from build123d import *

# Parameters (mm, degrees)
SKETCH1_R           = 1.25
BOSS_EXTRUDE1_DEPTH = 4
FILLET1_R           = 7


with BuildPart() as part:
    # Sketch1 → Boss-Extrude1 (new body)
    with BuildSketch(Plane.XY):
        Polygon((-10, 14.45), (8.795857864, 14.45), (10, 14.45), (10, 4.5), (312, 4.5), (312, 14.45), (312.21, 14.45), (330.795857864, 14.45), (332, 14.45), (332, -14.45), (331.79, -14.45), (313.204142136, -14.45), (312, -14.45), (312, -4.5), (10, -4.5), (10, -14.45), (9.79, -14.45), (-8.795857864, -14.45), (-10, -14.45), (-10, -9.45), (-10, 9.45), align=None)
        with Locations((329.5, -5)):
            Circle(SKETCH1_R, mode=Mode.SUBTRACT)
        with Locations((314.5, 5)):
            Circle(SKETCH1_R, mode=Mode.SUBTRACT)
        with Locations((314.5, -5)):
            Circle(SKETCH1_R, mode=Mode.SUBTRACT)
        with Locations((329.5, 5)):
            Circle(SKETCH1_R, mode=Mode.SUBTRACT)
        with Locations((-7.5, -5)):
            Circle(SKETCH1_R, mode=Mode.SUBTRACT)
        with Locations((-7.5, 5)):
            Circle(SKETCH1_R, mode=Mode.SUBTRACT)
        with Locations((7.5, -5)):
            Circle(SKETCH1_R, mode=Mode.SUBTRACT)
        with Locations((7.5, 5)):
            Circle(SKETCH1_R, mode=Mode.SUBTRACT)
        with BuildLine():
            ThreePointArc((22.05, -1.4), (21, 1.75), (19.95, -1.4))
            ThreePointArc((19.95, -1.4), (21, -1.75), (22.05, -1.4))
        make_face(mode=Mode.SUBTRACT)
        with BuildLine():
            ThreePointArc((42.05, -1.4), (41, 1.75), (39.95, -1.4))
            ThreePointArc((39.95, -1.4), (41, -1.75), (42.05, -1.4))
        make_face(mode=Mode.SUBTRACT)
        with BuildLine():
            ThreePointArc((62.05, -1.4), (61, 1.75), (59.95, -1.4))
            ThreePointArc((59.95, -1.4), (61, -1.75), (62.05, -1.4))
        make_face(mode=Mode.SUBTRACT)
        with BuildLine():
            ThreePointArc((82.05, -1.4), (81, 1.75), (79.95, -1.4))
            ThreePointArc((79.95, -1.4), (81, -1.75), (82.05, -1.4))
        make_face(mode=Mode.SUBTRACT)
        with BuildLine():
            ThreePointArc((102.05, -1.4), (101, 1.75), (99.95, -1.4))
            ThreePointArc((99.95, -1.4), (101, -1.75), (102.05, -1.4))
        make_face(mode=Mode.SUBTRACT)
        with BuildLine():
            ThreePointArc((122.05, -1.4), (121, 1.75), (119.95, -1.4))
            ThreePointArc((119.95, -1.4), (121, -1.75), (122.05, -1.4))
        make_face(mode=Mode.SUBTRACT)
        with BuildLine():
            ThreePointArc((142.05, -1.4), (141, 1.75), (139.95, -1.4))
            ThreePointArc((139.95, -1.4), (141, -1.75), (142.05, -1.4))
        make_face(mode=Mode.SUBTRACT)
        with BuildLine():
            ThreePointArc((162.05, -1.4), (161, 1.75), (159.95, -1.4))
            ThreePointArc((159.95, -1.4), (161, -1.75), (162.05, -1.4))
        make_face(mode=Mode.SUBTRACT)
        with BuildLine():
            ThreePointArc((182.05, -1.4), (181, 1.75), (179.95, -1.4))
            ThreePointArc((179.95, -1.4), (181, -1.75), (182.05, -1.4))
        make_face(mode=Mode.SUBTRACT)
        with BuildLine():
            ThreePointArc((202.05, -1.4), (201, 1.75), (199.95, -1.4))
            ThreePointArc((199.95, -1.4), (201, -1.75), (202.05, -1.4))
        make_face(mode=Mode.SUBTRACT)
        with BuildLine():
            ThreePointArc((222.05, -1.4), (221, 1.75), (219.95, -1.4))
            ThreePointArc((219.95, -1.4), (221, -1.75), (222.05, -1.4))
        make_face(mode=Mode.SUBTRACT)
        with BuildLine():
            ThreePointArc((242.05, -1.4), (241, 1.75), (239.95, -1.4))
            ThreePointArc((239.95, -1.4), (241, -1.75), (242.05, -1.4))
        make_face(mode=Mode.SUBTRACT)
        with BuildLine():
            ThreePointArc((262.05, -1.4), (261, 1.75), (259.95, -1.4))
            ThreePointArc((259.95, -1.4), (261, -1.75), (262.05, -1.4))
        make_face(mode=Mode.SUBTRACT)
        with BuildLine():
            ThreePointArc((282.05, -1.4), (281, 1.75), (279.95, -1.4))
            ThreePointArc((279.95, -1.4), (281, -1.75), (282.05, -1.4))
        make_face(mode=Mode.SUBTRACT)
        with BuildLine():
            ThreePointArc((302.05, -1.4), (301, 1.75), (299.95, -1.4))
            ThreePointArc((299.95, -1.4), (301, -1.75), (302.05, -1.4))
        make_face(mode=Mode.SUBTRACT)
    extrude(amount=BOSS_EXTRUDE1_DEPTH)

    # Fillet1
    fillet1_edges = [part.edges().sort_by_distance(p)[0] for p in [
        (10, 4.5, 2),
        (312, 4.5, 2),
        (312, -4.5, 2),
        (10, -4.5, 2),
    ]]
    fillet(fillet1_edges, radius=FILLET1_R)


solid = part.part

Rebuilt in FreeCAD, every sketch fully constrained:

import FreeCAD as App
import Part
import Sketcher

V = App.Vector


def edges_at(feature, points):
    """Names of the edges that pass closest to the given points."""
    edges = feature.Shape.Edges
    near = lambda p: min(range(len(edges)), key=lambda i: edges[i].distToShape(Part.Vertex(*p))[0])
    return sorted({f"Edge{near(p) + 1}" for p in points})


def add_polygon(sketch, points):
    """Adds a closed chain of lines whose ends are joined by coincident constraints."""
    first, n = sketch.GeometryCount, len(points)
    for a, b in zip(points, points[1:] + points[:1]):
        sketch.addGeometry(Part.LineSegment(App.Vector(*a, 0), App.Vector(*b, 0)), False)
    for i in range(n):
        sketch.addConstraint(Sketcher.Constraint("Coincident", first + i, 2, first + (i + 1) % n, 1))

doc = App.newDocument("Part")
body = doc.addObject("PartDesign::Body", "Body")

sketch1 = body.newObject("Sketcher::SketchObject", "Sketch")
sketch1.AttachmentSupport = (doc.getObject("XY_Plane"), [""])
sketch1.MapMode = "FlatFace"
add_polygon(sketch1, [(10, 14.4), (-10, 14.4), (-10, -14.4), (10, -14.4), (10, -4.5), (312, -4.5), (312, -14.4), (332, -14.4), (332, 14.4), (312, 14.4), (312, 4.5), (10, 4.5)])
sketch1.addGeometry(Part.Circle(V(329.5, -5, 0), V(0, 0, 1), 1.2), False)
sketch1.addGeometry(Part.Circle(V(314.5, -5, 0), V(0, 0, 1), 1.2), False)
sketch1.addGeometry(Part.Circle(V(301, 0, 0), V(0, 0, 1), 1.8), False)
sketch1.addGeometry(Part.Circle(V(281, 0, 0), V(0, 0, 1), 1.8), False)
sketch1.addGeometry(Part.Circle(V(261, 0, 0), V(0, 0, 1), 1.8), False)
sketch1.addGeometry(Part.Circle(V(7.5, -5, 0), V(0, 0, 1), 1.2), False)
sketch1.addGeometry(Part.Circle(V(-7.5, -5, 0), V(0, 0, 1), 1.2), False)
sketch1.addGeometry(Part.Circle(V(61, 0, 0), V(0, 0, 1), 1.8), False)
sketch1.addGeometry(Part.Circle(V(41, 0, 0), V(0, 0, 1), 1.8), False)
sketch1.addGeometry(Part.Circle(V(21, 0, 0), V(0, 0, 1), 1.8), False)
sketch1.addGeometry(Part.Circle(V(241, 0, 0), V(0, 0, 1), 1.8), False)
sketch1.addGeometry(Part.Circle(V(221, 0, 0), V(0, 0, 1), 1.8), False)
sketch1.addGeometry(Part.Circle(V(201, 0, 0), V(0, 0, 1), 1.8), False)
sketch1.addGeometry(Part.Circle(V(181, 0, 0), V(0, 0, 1), 1.8), False)
sketch1.addGeometry(Part.Circle(V(329.5, 5, 0), V(0, 0, 1), 1.2), False)
sketch1.addGeometry(Part.Circle(V(314.5, 5, 0), V(0, 0, 1), 1.2), False)
sketch1.addGeometry(Part.Circle(V(161, 0, 0), V(0, 0, 1), 1.8), False)
sketch1.addGeometry(Part.Circle(V(141, 0, 0), V(0, 0, 1), 1.8), False)
sketch1.addGeometry(Part.Circle(V(121, 0, 0), V(0, 0, 1), 1.8), False)
sketch1.addGeometry(Part.Circle(V(101, 0, 0), V(0, 0, 1), 1.8), False)
sketch1.addGeometry(Part.Circle(V(81, 0, 0), V(0, 0, 1), 1.8), False)
sketch1.addGeometry(Part.Circle(V(7.5, 5, 0), V(0, 0, 1), 1.2), False)
sketch1.addGeometry(Part.Circle(V(-7.5, 5, 0), V(0, 0, 1), 1.2), False)
sketch1.addConstraint([
    Sketcher.Constraint("Horizontal", 0),
    Sketcher.Constraint("Vertical", 1),
    Sketcher.Constraint("Horizontal", 2),
    Sketcher.Constraint("Vertical", 3),
    Sketcher.Constraint("Horizontal", 4),
    Sketcher.Constraint("Vertical", 5),
    Sketcher.Constraint("Horizontal", 6),
    Sketcher.Constraint("Vertical", 7),
    Sketcher.Constraint("Horizontal", 8),
    Sketcher.Constraint("Vertical", 9),
    Sketcher.Constraint("Horizontal", 10),
    Sketcher.Constraint("Vertical", 11),
    Sketcher.Constraint("Equal", 12, 13),
    Sketcher.Constraint("Equal", 14, 15),
    Sketcher.Constraint("Equal", 15, 16),
    Sketcher.Constraint("Equal", 13, 17),
    Sketcher.Constraint("Equal", 17, 18),
    Sketcher.Constraint("Equal", 16, 19),
    Sketcher.Constraint("Equal", 19, 20),
    Sketcher.Constraint("Equal", 20, 21),
    Sketcher.Constraint("Equal", 21, 22),
    Sketcher.Constraint("Equal", 22, 23),
    Sketcher.Constraint("Equal", 23, 24),
    Sketcher.Constraint("Equal", 24, 25),
    Sketcher.Constraint("Equal", 18, 26),
    Sketcher.Constraint("Equal", 26, 27),
    Sketcher.Constraint("Equal", 25, 28),
    Sketcher.Constraint("Equal", 28, 29),
    Sketcher.Constraint("Equal", 29, 30),
    Sketcher.Constraint("Equal", 30, 31),
    Sketcher.Constraint("Equal", 31, 32),
    Sketcher.Constraint("Equal", 27, 33),
    Sketcher.Constraint("Equal", 33, 34),
    Sketcher.Constraint("Symmetric", 18, 3, 33, 3, -1, 1),
    Sketcher.Constraint("Symmetric", 17, 3, 34, 3, -1, 1),
    Sketcher.Constraint("Symmetric", 0, 2, 2, 2, -1, 1),
    Sketcher.Constraint("Symmetric", 17, 3, 18, 3, -2),
    Sketcher.Constraint("Symmetric", 12, 3, 26, 3, -1),
    Sketcher.Constraint("Symmetric", 13, 3, 27, 3, -1),
    Sketcher.Constraint("Symmetric", 5, 2, 8, 2, -1),
    Sketcher.Constraint("Symmetric", 3, 2, 10, 2, -1),
    Sketcher.Constraint("PointOnObject", 14, 3, -1),
    Sketcher.Constraint("PointOnObject", 15, 3, -1),
    Sketcher.Constraint("PointOnObject", 16, 3, -1),
    Sketcher.Constraint("PointOnObject", 19, 3, -1),
    Sketcher.Constraint("PointOnObject", 20, 3, -1),
    Sketcher.Constraint("PointOnObject", 21, 3, -1),
    Sketcher.Constraint("PointOnObject", 22, 3, -1),
    Sketcher.Constraint("PointOnObject", 23, 3, -1),
    Sketcher.Constraint("PointOnObject", 24, 3, -1),
    Sketcher.Constraint("PointOnObject", 25, 3, -1),
    Sketcher.Constraint("PointOnObject", 28, 3, -1),
    Sketcher.Constraint("PointOnObject", 29, 3, -1),
    Sketcher.Constraint("PointOnObject", 30, 3, -1),
    Sketcher.Constraint("PointOnObject", 31, 3, -1),
    Sketcher.Constraint("PointOnObject", 32, 3, -1),
    Sketcher.Constraint("Horizontal", 12, 3, 13, 3),
    Sketcher.Constraint("Horizontal", 13, 3, 17, 3),
    Sketcher.Constraint("Horizontal", 2, 2, 5, 2),
    Sketcher.Constraint("Equal", 2, 6),
    Sketcher.Constraint("Diameter", 12, 2.5),
    Sketcher.Constraint("Diameter", 14, 3.5),
    Sketcher.Constraint("DistanceX", 0, 2, 0, 1, 20.0),
    Sketcher.Constraint("DistanceX", 4, 1, 4, 2, 302.0),
    Sketcher.Constraint("DistanceY", 1, 2, 1, 1, 28.9),
    Sketcher.Constraint("DistanceY", 12, 3, -1, 1, 5.0),
    Sketcher.Constraint("DistanceX", -1, 1, 14, 3, 301.0),
    Sketcher.Constraint("DistanceX", -1, 1, 15, 3, 281.0),
    Sketcher.Constraint("DistanceX", -1, 1, 16, 3, 261.0),
    Sketcher.Constraint("DistanceX", -1, 1, 19, 3, 61.0),
    Sketcher.Constraint("DistanceX", -1, 1, 20, 3, 41.0),
    Sketcher.Constraint("DistanceX", -1, 1, 21, 3, 21.0),
    Sketcher.Constraint("DistanceX", -1, 1, 22, 3, 241.0),
    Sketcher.Constraint("DistanceX", -1, 1, 23, 3, 221.0),
    Sketcher.Constraint("DistanceX", -1, 1, 24, 3, 201.0),
    Sketcher.Constraint("DistanceX", -1, 1, 25, 3, 181.0),
    Sketcher.Constraint("DistanceX", -1, 1, 28, 3, 161.0),
    Sketcher.Constraint("DistanceX", -1, 1, 29, 3, 141.0),
    Sketcher.Constraint("DistanceX", -1, 1, 30, 3, 121.0),
    Sketcher.Constraint("DistanceX", -1, 1, 31, 3, 101.0),
    Sketcher.Constraint("DistanceX", -1, 1, 32, 3, 81.0),
    Sketcher.Constraint("DistanceX", 13, 3, 12, 3, 15.0),
    Sketcher.Constraint("DistanceX", 17, 3, 13, 3, 307.0),
    Sketcher.Constraint("DistanceX", 18, 3, 17, 3, 15.0),
    Sketcher.Constraint("DistanceY", 4, 2, 9, 2, 9.0),
])
pad1 = body.newObject("PartDesign::Pad", "Pad")
pad1.Profile = sketch1
pad1.Length = 4
doc.recompute()

fillet = body.newObject("PartDesign::Fillet", "Fillet")
fillet.Base = (pad1, edges_at(pad1, [
    (10, 4.5, 2),
    (312, 4.5, 2),
    (312, -4.5, 2),
    (10, -4.5, 2),
]))
fillet.Radius = 7

doc.recompute()
